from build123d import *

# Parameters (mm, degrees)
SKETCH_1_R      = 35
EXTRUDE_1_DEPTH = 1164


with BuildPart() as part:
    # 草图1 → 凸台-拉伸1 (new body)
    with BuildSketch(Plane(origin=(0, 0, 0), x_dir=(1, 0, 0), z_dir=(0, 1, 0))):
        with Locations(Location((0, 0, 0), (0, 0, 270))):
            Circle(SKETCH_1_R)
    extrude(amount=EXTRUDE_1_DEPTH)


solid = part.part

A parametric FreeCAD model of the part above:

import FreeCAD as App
import Part
import Sketcher
from FreeCAD import Vector

doc = App.newDocument("Part")
body = doc.addObject("PartDesign::Body", "Body")

sketch1 = body.newObject("Sketcher::SketchObject", "Sketch")
sketch1.AttachmentSupport = (doc.getObject("XZ_Plane"), [""])
sketch1.MapMode = "FlatFace"
sketch1.addGeometry(Part.Circle(Vector(0, 0, 0), Vector(0, 0, 1), 35), False)
sketch1.addConstraint([
    Sketcher.Constraint("Coincident", 0, 3, -1, 1),
    Sketcher.Constraint("Diameter", 0, 70.0),
])
pad1 = body.newObject("PartDesign::Pad", "Pad")
pad1.Profile = sketch1
pad1.Length = 1164
pad1.Reversed = True

doc.recompute()
